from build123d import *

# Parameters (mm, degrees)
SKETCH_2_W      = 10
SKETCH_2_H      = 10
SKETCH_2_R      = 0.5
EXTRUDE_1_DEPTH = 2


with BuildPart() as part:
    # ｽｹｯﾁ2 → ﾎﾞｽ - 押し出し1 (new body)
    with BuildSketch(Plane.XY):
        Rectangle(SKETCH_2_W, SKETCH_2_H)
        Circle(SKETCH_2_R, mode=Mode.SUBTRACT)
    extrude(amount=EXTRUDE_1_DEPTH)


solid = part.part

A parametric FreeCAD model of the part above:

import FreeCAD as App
import Part
import Sketcher

V = App.Vector
Q = App.Units.Quantity

doc = App.newDocument("Part")
body = doc.addObject("PartDesign::Body", "Body")

# Sketch on XY plane
sketch1 = body.newObject("Sketcher::SketchObject", "Sketch")
sketch1.AttachmentSupport = (doc.getObject("XY_Plane"), [""])
sketch1.MapMode = "FlatFace"
sketch1.addGeometry(Part.LineSegment(V(-5, 5, 0), V(-5, -5, 0)), False)
sketch1.addGeometry(Part.LineSegment(V(-5, -5, 0), V(5, -5, 0)), False)
sketch1.addGeometry(Part.LineSegment(V(5, -5, 0), V(5, 5, 0)), False)
sketch1.addGeometry(Part.LineSegment(V(5, 5, 0), V(-5, 5, 0)), False)
sketch1.addGeometry(Part.Circle(V(0, 0, 0), V(0, 0, 1), 0.5), False)
sketch1.addConstraint(Sketcher.Constraint("Coincident", 0, 2, 1, 1))
sketch1.addConstraint(Sketcher.Constraint("Coincident", 1, 2, 2, 1))
sketch1.addConstraint(Sketcher.Constraint("Coincident", 2, 2, 3, 1))
sketch1.addConstraint(Sketcher.Constraint("Coincident", 3, 2, 0, 1))
sketch1.addConstraint(Sketcher.Constraint("Vertical", 0))
sketch1.addConstraint(Sketcher.Constraint("Horizontal", 1))
sketch1.addConstraint(Sketcher.Constraint("Vertical", 2))
sketch1.addConstraint(Sketcher.Constraint("Horizontal", 3))
sketch1.addConstraint(Sketcher.Constraint("Coincident", 4, 3, -1, 1))
sketch1.addConstraint(Sketcher.Constraint("Symmetric", 0, 2, 2, 2, -1, 1))
sketch1.addConstraint(Sketcher.Constraint("Equal", 3, 0))
sketch1.addConstraint(Sketcher.Constraint("Diameter", 4, Q("1 mm")))
sketch1.addConstraint(Sketcher.Constraint("DistanceX", 1, 1, 1, 2, Q("10 mm")))
pad1 = body.newObject("PartDesign::Pad", "Pad")
pad1.Profile = sketch1
pad1.Length = 2

doc.recompute()
